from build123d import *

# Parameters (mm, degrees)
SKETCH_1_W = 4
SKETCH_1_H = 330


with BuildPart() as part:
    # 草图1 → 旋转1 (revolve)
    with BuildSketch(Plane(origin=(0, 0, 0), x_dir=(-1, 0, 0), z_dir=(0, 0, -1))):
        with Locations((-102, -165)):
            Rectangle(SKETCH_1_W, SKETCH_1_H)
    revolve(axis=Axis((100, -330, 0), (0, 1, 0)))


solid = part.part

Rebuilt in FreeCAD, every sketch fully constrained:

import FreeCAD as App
import Part
import Sketcher

V = App.Vector
Q = App.Units.Quantity


def add_polygon(sketch, points):
    """Adds a closed chain of lines whose ends are joined by coincident constraints."""
    first, n = sketch.GeometryCount, len(points)
    for a, b in zip(points, points[1:] + points[:1]):
        sketch.addGeometry(Part.LineSegment(App.Vector(*a, 0), App.Vector(*b, 0)), False)
    for i in range(n):
        sketch.addConstraint(Sketcher.Constraint("Coincident", first + i, 2, first + (i + 1) % n, 1))

doc = App.newDocument("Part")
body = doc.addObject("PartDesign::Body", "Body")

# Sketch on XY plane
sketch1 = body.newObject("Sketcher::SketchObject", "Sketch")
sketch1.AttachmentSupport = (doc.getObject("XY_Plane"), [""])
sketch1.MapMode = "FlatFace"
add_polygon(sketch1, [(104, 0), (104, -330), (100, -330), (100, 0)])  # lines 0-3
sketch1.addGeometry(Part.LineSegment(V(100, -330, 0), V(100, 0, 0)), True)  # axis
sketch1.addConstraint([
    Sketcher.Constraint("Vertical", 0),
    Sketcher.Constraint("Horizontal", 1),
    Sketcher.Constraint("Vertical", 2),
    Sketcher.Constraint("Horizontal", 3),
    Sketcher.Constraint("Vertical", 4),
    Sketcher.Constraint("Coincident", 4, 1, 1, 2),
    Sketcher.Constraint("PointOnObject", 2, 2, -1),
    Sketcher.Constraint("PointOnObject", 4, 2, -1),
    Sketcher.Constraint("DistanceX", 1, 2, 1, 1, Q("4 mm")),
    Sketcher.Constraint("DistanceY", 0, 2, 0, 1, Q("330 mm")),
    Sketcher.Constraint("DistanceX", -1, 1, 0, 2, Q("104 mm")),
])
revolution = body.newObject("PartDesign::Revolution", "Revolution")
revolution.Profile = sketch1
revolution.ReferenceAxis = (sketch1, ["Axis0"])
revolution.Angle = 360

doc.recompute()
